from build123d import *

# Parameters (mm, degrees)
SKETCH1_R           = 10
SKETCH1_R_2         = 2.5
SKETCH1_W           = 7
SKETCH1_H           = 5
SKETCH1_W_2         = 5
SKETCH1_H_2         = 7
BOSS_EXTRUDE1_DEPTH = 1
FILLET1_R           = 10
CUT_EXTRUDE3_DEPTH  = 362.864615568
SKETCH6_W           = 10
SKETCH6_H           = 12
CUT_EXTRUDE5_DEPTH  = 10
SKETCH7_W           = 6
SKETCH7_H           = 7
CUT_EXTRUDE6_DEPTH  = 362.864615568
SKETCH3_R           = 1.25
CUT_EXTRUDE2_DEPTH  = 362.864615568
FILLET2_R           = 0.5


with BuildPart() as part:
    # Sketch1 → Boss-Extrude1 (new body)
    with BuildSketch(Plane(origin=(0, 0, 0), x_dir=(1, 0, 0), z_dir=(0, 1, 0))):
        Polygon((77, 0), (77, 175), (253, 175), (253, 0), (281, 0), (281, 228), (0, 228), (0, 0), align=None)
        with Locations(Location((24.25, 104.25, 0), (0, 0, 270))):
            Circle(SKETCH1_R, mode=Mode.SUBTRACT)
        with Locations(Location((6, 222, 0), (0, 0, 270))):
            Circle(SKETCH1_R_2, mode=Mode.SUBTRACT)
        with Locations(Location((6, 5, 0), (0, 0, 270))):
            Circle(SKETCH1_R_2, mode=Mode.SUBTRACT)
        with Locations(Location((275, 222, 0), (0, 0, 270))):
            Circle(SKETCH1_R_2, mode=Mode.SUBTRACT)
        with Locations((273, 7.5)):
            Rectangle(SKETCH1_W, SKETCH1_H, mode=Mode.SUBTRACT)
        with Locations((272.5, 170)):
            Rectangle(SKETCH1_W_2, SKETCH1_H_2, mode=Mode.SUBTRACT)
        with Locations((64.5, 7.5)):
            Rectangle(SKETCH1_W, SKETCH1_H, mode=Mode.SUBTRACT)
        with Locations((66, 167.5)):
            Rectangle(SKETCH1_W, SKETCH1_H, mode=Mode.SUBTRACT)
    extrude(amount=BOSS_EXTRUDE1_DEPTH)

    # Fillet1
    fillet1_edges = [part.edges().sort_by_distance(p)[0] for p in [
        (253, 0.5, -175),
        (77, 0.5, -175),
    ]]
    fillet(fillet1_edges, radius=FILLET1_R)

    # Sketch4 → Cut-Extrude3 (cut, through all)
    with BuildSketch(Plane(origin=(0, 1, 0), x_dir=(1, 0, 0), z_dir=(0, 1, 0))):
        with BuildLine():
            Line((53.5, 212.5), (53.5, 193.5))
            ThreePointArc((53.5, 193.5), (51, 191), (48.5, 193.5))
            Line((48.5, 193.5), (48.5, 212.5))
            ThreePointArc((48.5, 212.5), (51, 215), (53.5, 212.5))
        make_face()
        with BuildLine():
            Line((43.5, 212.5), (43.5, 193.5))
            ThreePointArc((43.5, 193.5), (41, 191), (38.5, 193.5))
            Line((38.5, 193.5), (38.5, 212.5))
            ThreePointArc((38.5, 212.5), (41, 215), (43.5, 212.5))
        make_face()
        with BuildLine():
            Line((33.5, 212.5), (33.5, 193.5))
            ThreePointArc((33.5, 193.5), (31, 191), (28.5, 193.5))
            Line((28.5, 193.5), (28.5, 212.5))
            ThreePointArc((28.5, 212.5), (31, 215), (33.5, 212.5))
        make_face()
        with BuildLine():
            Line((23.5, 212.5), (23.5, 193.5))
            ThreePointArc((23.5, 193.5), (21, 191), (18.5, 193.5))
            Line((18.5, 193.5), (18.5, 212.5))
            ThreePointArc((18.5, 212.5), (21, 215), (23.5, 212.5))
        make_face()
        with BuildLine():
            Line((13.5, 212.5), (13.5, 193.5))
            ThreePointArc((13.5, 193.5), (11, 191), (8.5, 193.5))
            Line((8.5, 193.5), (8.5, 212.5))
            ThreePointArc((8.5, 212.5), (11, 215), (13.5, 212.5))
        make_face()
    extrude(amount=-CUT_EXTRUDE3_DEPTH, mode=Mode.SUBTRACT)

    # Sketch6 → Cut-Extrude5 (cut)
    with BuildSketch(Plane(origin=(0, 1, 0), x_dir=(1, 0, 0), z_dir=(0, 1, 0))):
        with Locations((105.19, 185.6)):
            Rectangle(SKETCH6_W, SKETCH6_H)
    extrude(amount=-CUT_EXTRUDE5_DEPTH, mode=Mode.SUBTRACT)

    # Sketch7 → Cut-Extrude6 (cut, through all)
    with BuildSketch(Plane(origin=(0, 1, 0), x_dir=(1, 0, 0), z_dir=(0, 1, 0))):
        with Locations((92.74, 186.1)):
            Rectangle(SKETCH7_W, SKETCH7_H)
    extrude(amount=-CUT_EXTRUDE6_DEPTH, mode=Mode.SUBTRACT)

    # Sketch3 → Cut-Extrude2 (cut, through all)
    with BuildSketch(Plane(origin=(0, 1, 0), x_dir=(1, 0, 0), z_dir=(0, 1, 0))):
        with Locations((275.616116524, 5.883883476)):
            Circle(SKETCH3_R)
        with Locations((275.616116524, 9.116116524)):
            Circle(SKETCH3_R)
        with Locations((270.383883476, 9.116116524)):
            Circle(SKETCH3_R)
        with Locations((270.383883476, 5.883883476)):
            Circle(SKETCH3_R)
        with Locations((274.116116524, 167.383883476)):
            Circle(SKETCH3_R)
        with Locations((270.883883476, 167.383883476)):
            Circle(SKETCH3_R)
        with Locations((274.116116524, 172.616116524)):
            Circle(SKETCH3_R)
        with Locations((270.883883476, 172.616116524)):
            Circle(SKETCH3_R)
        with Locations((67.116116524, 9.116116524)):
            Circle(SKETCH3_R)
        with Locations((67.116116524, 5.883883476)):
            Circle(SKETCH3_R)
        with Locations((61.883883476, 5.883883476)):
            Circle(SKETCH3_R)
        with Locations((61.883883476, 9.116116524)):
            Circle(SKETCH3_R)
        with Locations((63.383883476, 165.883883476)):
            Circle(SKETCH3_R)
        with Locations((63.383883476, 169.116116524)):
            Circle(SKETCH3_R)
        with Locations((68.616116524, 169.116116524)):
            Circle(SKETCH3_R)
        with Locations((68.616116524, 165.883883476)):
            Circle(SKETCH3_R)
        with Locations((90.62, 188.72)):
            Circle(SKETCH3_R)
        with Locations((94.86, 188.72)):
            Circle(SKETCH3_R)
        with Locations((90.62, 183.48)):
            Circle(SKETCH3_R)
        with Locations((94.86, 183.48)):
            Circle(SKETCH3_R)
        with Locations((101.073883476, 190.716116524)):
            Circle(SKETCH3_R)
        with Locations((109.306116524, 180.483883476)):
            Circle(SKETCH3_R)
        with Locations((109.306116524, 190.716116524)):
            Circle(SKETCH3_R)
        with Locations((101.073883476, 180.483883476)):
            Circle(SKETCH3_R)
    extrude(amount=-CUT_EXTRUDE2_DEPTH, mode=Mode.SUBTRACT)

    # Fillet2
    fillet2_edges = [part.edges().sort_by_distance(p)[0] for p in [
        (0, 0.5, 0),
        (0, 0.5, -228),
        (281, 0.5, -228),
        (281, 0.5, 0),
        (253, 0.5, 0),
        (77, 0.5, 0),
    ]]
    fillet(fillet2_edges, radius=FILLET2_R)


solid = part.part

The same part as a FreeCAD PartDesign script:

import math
import FreeCAD as App
import Part
import Sketcher

V = App.Vector


def edges_at(feature, points):
    """Names of the edges that pass closest to the given points."""
    edges = feature.Shape.Edges
    near = lambda p: min(range(len(edges)), key=lambda i: edges[i].distToShape(Part.Vertex(*p))[0])
    return sorted({f"Edge{near(p) + 1}" for p in points})

doc = App.newDocument("Part")
body = doc.addObject("PartDesign::Body", "Body")

sketch1 = body.newObject("Sketcher::SketchObject", "Sketch")
sketch1.AttachmentSupport = (doc.getObject("XZ_Plane"), [""])
sketch1.MapMode = "FlatFace"
sketch1.addGeometry([
    Part.LineSegment(V(77, 0, 0), V(77, -175, 0)),
    Part.LineSegment(V(77, -175, 0), V(253, -175, 0)),
    Part.LineSegment(V(253, -175, 0), V(253, 0, 0)),
    Part.LineSegment(V(253, 0, 0), V(281, 0, 0)),
    Part.LineSegment(V(281, 0, 0), V(281, -228, 0)),
    Part.LineSegment(V(281, -228, 0), V(0, -228, 0)),
    Part.LineSegment(V(0, -228, 0), V(0, 0, 0)),
    Part.LineSegment(V(0, 0, 0), V(77, 0, 0)),
    Part.Circle(V(6, -5, 0), V(0, 0, 1), 2.5),
    Part.LineSegment(V(68, -5, 0), V(61, -5, 0)),
    Part.LineSegment(V(61, -5, 0), V(61, -10, 0)),
    Part.LineSegment(V(61, -10, 0), V(68, -10, 0)),
    Part.LineSegment(V(68, -10, 0), V(68, -5, 0)),
    Part.Circle(V(24.2, -104.2, 0), V(0, 0, 1), 10),
    Part.LineSegment(V(276.5, -5, 0), V(269.5, -5, 0)),
    Part.LineSegment(V(269.5, -5, 0), V(269.5, -10, 0)),
    Part.LineSegment(V(269.5, -10, 0), V(276.5, -10, 0)),
    Part.LineSegment(V(276.5, -10, 0), V(276.5, -5, 0)),
    Part.LineSegment(V(69.5, -165, 0), V(62.5, -165, 0)),
    Part.LineSegment(V(62.5, -165, 0), V(62.5, -170, 0)),
    Part.LineSegment(V(62.5, -170, 0), V(69.5, -170, 0)),
    Part.LineSegment(V(69.5, -170, 0), V(69.5, -165, 0)),
    Part.Circle(V(6, -222, 0), V(0, 0, 1), 2.5),
    Part.LineSegment(V(275, -166.5, 0), V(270, -166.5, 0)),
    Part.LineSegment(V(270, -166.5, 0), V(270, -173.5, 0)),
    Part.LineSegment(V(270, -173.5, 0), V(275, -173.5, 0)),
    Part.LineSegment(V(275, -173.5, 0), V(275, -166.5, 0)),
    Part.Circle(V(275, -222, 0), V(0, 0, 1), 2.5),
], False)
sketch1.addConstraint([
    Sketcher.Constraint("Coincident", 0, 2, 1, 1),
    Sketcher.Constraint("Coincident", 1, 2, 2, 1),
    Sketcher.Constraint("Coincident", 2, 2, 3, 1),
    Sketcher.Constraint("Coincident", 3, 2, 4, 1),
    Sketcher.Constraint("Coincident", 4, 2, 5, 1),
    Sketcher.Constraint("Coincident", 5, 2, 6, 1),
    Sketcher.Constraint("Coincident", 6, 2, 7, 1),
    Sketcher.Constraint("Coincident", 7, 2, 0, 1),
    Sketcher.Constraint("Coincident", 9, 2, 10, 1),
    Sketcher.Constraint("Coincident", 10, 2, 11, 1),
    Sketcher.Constraint("Coincident", 11, 2, 12, 1),
    Sketcher.Constraint("Coincident", 12, 2, 9, 1),
    Sketcher.Constraint("Coincident", 14, 2, 15, 1),
    Sketcher.Constraint("Coincident", 15, 2, 16, 1),
    Sketcher.Constraint("Coincident", 16, 2, 17, 1),
    Sketcher.Constraint("Coincident", 17, 2, 14, 1),
    Sketcher.Constraint("Coincident", 18, 2, 19, 1),
    Sketcher.Constraint("Coincident", 19, 2, 20, 1),
    Sketcher.Constraint("Coincident", 20, 2, 21, 1),
    Sketcher.Constraint("Coincident", 21, 2, 18, 1),
    Sketcher.Constraint("Coincident", 23, 2, 24, 1),
    Sketcher.Constraint("Coincident", 24, 2, 25, 1),
    Sketcher.Constraint("Coincident", 25, 2, 26, 1),
    Sketcher.Constraint("Coincident", 26, 2, 23, 1),
    Sketcher.Constraint("Vertical", 0),
    Sketcher.Constraint("Horizontal", 1),
    Sketcher.Constraint("Vertical", 2),
    Sketcher.Constraint("Horizontal", 3),
    Sketcher.Constraint("Vertical", 4),
    Sketcher.Constraint("Horizontal", 5),
    Sketcher.Constraint("Vertical", 6),
    Sketcher.Constraint("Horizontal", 7),
    Sketcher.Constraint("Horizontal", 9),
    Sketcher.Constraint("Vertical", 10),
    Sketcher.Constraint("Horizontal", 11),
    Sketcher.Constraint("Vertical", 12),
    Sketcher.Constraint("Horizontal", 14),
    Sketcher.Constraint("Vertical", 15),
    Sketcher.Constraint("Horizontal", 16),
    Sketcher.Constraint("Vertical", 17),
    Sketcher.Constraint("Horizontal", 18),
    Sketcher.Constraint("Vertical", 19),
    Sketcher.Constraint("Horizontal", 20),
    Sketcher.Constraint("Vertical", 21),
    Sketcher.Constraint("Horizontal", 23),
    Sketcher.Constraint("Vertical", 24),
    Sketcher.Constraint("Horizontal", 25),
    Sketcher.Constraint("Vertical", 26),
    Sketcher.Constraint("Coincident", 6, 2, -1, 1),
    Sketcher.Constraint("Equal", 8, 22),
    Sketcher.Constraint("Equal", 22, 27),
    Sketcher.Constraint("PointOnObject", 2, 2, -1),
    Sketcher.Constraint("Horizontal", 22, 3, 27, 3),
    Sketcher.Constraint("Horizontal", 8, 3, 9, 2),
    Sketcher.Constraint("Horizontal", 12, 2, 14, 2),
    Sketcher.Constraint("Horizontal", 11, 2, 15, 2),
    Sketcher.Constraint("Vertical", 8, 3, 22, 3),
    Sketcher.Constraint("Vertical", 27, 3, 25, 2),
    Sketcher.Constraint("Equal", 11, 14),
    Sketcher.Constraint("Equal", 16, 18),
    Sketcher.Constraint("Equal", 25, 10),
    Sketcher.Constraint("Equal", 17, 19),
    Sketcher.Constraint("Equal", 20, 24),
    Sketcher.Constraint("Diameter", 8, 5.0),
    Sketcher.Constraint("Diameter", 13, 20.0),
    Sketcher.Constraint("DistanceX", 1, 1, 1, 2, 176.0),
    Sketcher.Constraint("DistanceX", 3, 1, 3, 2, 28.0),
    Sketcher.Constraint("DistanceX", 5, 2, 5, 1, 281.0),
    Sketcher.Constraint("DistanceX", 9, 2, 9, 1, 7.0),
    Sketcher.Constraint("DistanceX", 23, 2, 23, 1, 5.0),
    Sketcher.Constraint("DistanceY", 0, 2, 0, 1, 175.0),
    Sketcher.Constraint("DistanceY", 4, 2, 4, 1, 228.0),
    Sketcher.Constraint("DistanceX", -1, 1, 8, 3, 6.0),
    Sketcher.Constraint("DistanceY", 8, 3, -1, 1, 5.0),
    Sketcher.Constraint("DistanceY", 22, 3, -1, 1, 222.0),
    Sketcher.Constraint("DistanceX", -1, 1, 27, 3, 275.0),
    Sketcher.Constraint("DistanceX", -1, 1, 9, 2, 61.0),
    Sketcher.Constraint("DistanceY", 18, 2, -1, 1, 165.0),
    Sketcher.Constraint("DistanceX", -1, 1, 14, 2, 269.5),
    Sketcher.Constraint("DistanceX", -1, 1, 18, 2, 62.5),
    Sketcher.Constraint("DistanceY", 23, 2, -1, 1, 166.5),
    Sketcher.Constraint("DistanceX", -1, 1, 13, 3, 24.25),
    Sketcher.Constraint("DistanceY", 13, 3, -1, 1, 104.25),
])
pad1 = body.newObject("PartDesign::Pad", "Pad")
pad1.Profile = sketch1
pad1.Length = 1
pad1.Reversed = True
doc.recompute()

fillet = body.newObject("PartDesign::Fillet", "Fillet")
fillet.Base = (pad1, edges_at(pad1, [(253, 0.5, -175), (77, 0.5, -175)]))
fillet.Radius = 10

sketch2 = body.newObject("Sketcher::SketchObject", "Sketch001")
sketch2.AttachmentSupport = (doc.getObject("XZ_Plane"), [""])
sketch2.MapMode = "FlatFace"
sketch2.AttachmentOffset = App.Placement(V(0, 0, -1), App.Rotation())
sketch2.addGeometry([
    Part.LineSegment(V(53.5, -193.5, 0), V(53.5, -212.5, 0)),
    Part.ArcOfCircle(Part.Circle(V(51, -212.5, 0), V(0, 0, 1), 2.5), math.radians(180), math.radians(360)),
    Part.LineSegment(V(48.5, -212.5, 0), V(48.5, -193.5, 0)),
    Part.ArcOfCircle(Part.Circle(V(51, -193.5, 0), V(0, 0, 1), 2.5), math.radians(0), math.radians(180)),
    Part.LineSegment(V(43.5, -193.5, 0), V(43.5, -212.5, 0)),
    Part.ArcOfCircle(Part.Circle(V(41, -212.5, 0), V(0, 0, 1), 2.5), math.radians(180), math.radians(360)),
    Part.LineSegment(V(38.5, -212.5, 0), V(38.5, -193.5, 0)),
    Part.ArcOfCircle(Part.Circle(V(41, -193.5, 0), V(0, 0, 1), 2.5), math.radians(0), math.radians(180)),
    Part.LineSegment(V(33.5, -193.5, 0), V(33.5, -212.5, 0)),
    Part.ArcOfCircle(Part.Circle(V(31, -212.5, 0), V(0, 0, 1), 2.5), math.radians(180), math.radians(360)),
    Part.LineSegment(V(28.5, -212.5, 0), V(28.5, -193.5, 0)),
    Part.ArcOfCircle(Part.Circle(V(31, -193.5, 0), V(0, 0, 1), 2.5), math.radians(0), math.radians(180)),
    Part.LineSegment(V(23.5, -193.5, 0), V(23.5, -212.5, 0)),
    Part.ArcOfCircle(Part.Circle(V(21, -212.5, 0), V(0, 0, 1), 2.5), math.radians(180), math.radians(360)),
    Part.LineSegment(V(18.5, -212.5, 0), V(18.5, -193.5, 0)),
    Part.ArcOfCircle(Part.Circle(V(21, -193.5, 0), V(0, 0, 1), 2.5), math.radians(0), math.radians(180)),
    Part.LineSegment(V(13.5, -193.5, 0), V(13.5, -212.5, 0)),
    Part.ArcOfCircle(Part.Circle(V(11, -212.5, 0), V(0, 0, 1), 2.5), math.radians(180), math.radians(360)),
    Part.LineSegment(V(8.5, -212.5, 0), V(8.5, -193.5, 0)),
    Part.ArcOfCircle(Part.Circle(V(11, -193.5, 0), V(0, 0, 1), 2.5), math.radians(0), math.radians(180)),
], False)
sketch2.addConstraint([
    Sketcher.Constraint("Tangent", 0, 2, 1, 2),
    Sketcher.Constraint("Tangent", 1, 1, 2, 1),
    Sketcher.Constraint("Tangent", 2, 2, 3, 2),
    Sketcher.Constraint("Tangent", 3, 1, 0, 1),
    Sketcher.Constraint("Tangent", 4, 2, 5, 2),
    Sketcher.Constraint("Tangent", 5, 1, 6, 1),
    Sketcher.Constraint("Tangent", 6, 2, 7, 2),
    Sketcher.Constraint("Tangent", 7, 1, 4, 1),
    Sketcher.Constraint("Tangent", 8, 2, 9, 2),
    Sketcher.Constraint("Tangent", 9, 1, 10, 1),
    Sketcher.Constraint("Tangent", 10, 2, 11, 2),
    Sketcher.Constraint("Tangent", 11, 1, 8, 1),
    Sketcher.Constraint("Tangent", 12, 2, 13, 2),
    Sketcher.Constraint("Tangent", 13, 1, 14, 1),
    Sketcher.Constraint("Tangent", 14, 2, 15, 2),
    Sketcher.Constraint("Tangent", 15, 1, 12, 1),
    Sketcher.Constraint("Tangent", 16, 2, 17, 2),
    Sketcher.Constraint("Tangent", 17, 1, 18, 1),
    Sketcher.Constraint("Tangent", 18, 2, 19, 2),
    Sketcher.Constraint("Tangent", 19, 1, 16, 1),
    Sketcher.Constraint("Vertical", 0),
    Sketcher.Constraint("Vertical", 2),
    Sketcher.Constraint("Vertical", 4),
    Sketcher.Constraint("Vertical", 6),
    Sketcher.Constraint("Vertical", 8),
    Sketcher.Constraint("Vertical", 10),
    Sketcher.Constraint("Vertical", 12),
    Sketcher.Constraint("Vertical", 14),
    Sketcher.Constraint("Vertical", 16),
    Sketcher.Constraint("Vertical", 18),
    Sketcher.Constraint("Equal", 3, 5),
    Sketcher.Constraint("Equal", 7, 9),
    Sketcher.Constraint("Equal", 11, 13),
    Sketcher.Constraint("Equal", 15, 17),
    Sketcher.Constraint("Horizontal", 1, 3, 5, 3),
    Sketcher.Constraint("Horizontal", 3, 3, 7, 3),
    Sketcher.Constraint("Horizontal", 5, 3, 9, 3),
    Sketcher.Constraint("Horizontal", 7, 3, 11, 3),
    Sketcher.Constraint("Horizontal", 9, 3, 13, 3),
    Sketcher.Constraint("Horizontal", 11, 3, 15, 3),
    Sketcher.Constraint("Horizontal", 13, 3, 17, 3),
    Sketcher.Constraint("Horizontal", 15, 3, 19, 3),
    Sketcher.Constraint("Radius", 1, 2.5),
    Sketcher.Constraint("DistanceY", 0, 2, 0, 1, 19.0),
    Sketcher.Constraint("DistanceX", -1, 1, 1, 3, 51.0),
    Sketcher.Constraint("DistanceX", -1, 1, 5, 3, 41.0),
    Sketcher.Constraint("DistanceX", -1, 1, 9, 3, 31.0),
    Sketcher.Constraint("DistanceX", -1, 1, 13, 3, 21.0),
    Sketcher.Constraint("DistanceX", -1, 1, 17, 3, 11.0),
    Sketcher.Constraint("DistanceY", 1, 3, -1, 1, 212.5),
])
pocket1 = body.newObject("PartDesign::Pocket", "Pocket")
pocket1.Profile = sketch2
pocket1.Type = "ThroughAll"
pocket1.Reversed = True

sketch3 = body.newObject("Sketcher::SketchObject", "Sketch002")
sketch3.AttachmentSupport = (doc.getObject("XZ_Plane"), [""])
sketch3.MapMode = "FlatFace"
sketch3.AttachmentOffset = App.Placement(V(0, 0, -1), App.Rotation())
sketch3.addGeometry([
    Part.LineSegment(V(100, -192, 0), V(100, -180, 0)),
    Part.LineSegment(V(100, -180, 0), V(110, -180, 0)),
    Part.LineSegment(V(110, -180, 0), V(110, -192, 0)),
    Part.LineSegment(V(110, -192, 0), V(100, -192, 0)),
], False)
sketch3.addConstraint([
    Sketcher.Constraint("Coincident", 0, 2, 1, 1),
    Sketcher.Constraint("Coincident", 1, 2, 2, 1),
    Sketcher.Constraint("Coincident", 2, 2, 3, 1),
    Sketcher.Constraint("Coincident", 3, 2, 0, 1),
    Sketcher.Constraint("Vertical", 0),
    Sketcher.Constraint("Horizontal", 1),
    Sketcher.Constraint("Vertical", 2),
    Sketcher.Constraint("Horizontal", 3),
    Sketcher.Constraint("DistanceX", 1, 1, 1, 2, 10.0),
    Sketcher.Constraint("DistanceY", 0, 1, 0, 2, 12.0),
    Sketcher.Constraint("DistanceY", 0, 2, -1, 1, 179.6),
    Sketcher.Constraint("DistanceX", -1, 1, 0, 2, 100.19),
])
pocket2 = body.newObject("PartDesign::Pocket", "Pocket001")
pocket2.Profile = sketch3
pocket2.Length = 10
pocket2.Reversed = True

sketch4 = body.newObject("Sketcher::SketchObject", "Sketch003")
sketch4.AttachmentSupport = (doc.getObject("XZ_Plane"), [""])
sketch4.MapMode = "FlatFace"
sketch4.AttachmentOffset = App.Placement(V(0, 0, -1), App.Rotation())
sketch4.addGeometry([
    Part.LineSegment(V(90, -190, 0), V(90, -183, 0)),
    Part.LineSegment(V(90, -183, 0), V(96, -183, 0)),
    Part.LineSegment(V(96, -183, 0), V(96, -190, 0)),
    Part.LineSegment(V(96, -190, 0), V(90, -190, 0)),
], False)
sketch4.addConstraint([
    Sketcher.Constraint("Coincident", 0, 2, 1, 1),
    Sketcher.Constraint("Coincident", 1, 2, 2, 1),
    Sketcher.Constraint("Coincident", 2, 2, 3, 1),
    Sketcher.Constraint("Coincident", 3, 2, 0, 1),
    Sketcher.Constraint("Vertical", 0),
    Sketcher.Constraint("Horizontal", 1),
    Sketcher.Constraint("Vertical", 2),
    Sketcher.Constraint("Horizontal", 3),
    Sketcher.Constraint("DistanceX", 1, 1, 1, 2, 6.0),
    Sketcher.Constraint("DistanceY", 0, 1, 0, 2, 7.0),
    Sketcher.Constraint("DistanceY", 0, 2, -1, 1, 182.6),
    Sketcher.Constraint("DistanceX", -1, 1, 0, 2, 89.74),
])
pocket3 = body.newObject("PartDesign::Pocket", "Pocket002")
pocket3.Profile = sketch4
pocket3.Type = "ThroughAll"
pocket3.Reversed = True

sketch5 = body.newObject("Sketcher::SketchObject", "Sketch004")
sketch5.AttachmentSupport = (doc.getObject("XZ_Plane"), [""])
sketch5.MapMode = "FlatFace"
sketch5.AttachmentOffset = App.Placement(V(0, 0, -1), App.Rotation())
sketch5.addGeometry([
    Part.Circle(V(275.6, -5.9, 0), V(0, 0, 1), 1.2),
    Part.Circle(V(275.6, -9.1, 0), V(0, 0, 1), 1.2),
    Part.Circle(V(270.4, -9.1, 0), V(0, 0, 1), 1.2),
    Part.Circle(V(270.4, -5.9, 0), V(0, 0, 1), 1.2),
    Part.Circle(V(274.1, -167.4, 0), V(0, 0, 1), 1.2),
    Part.Circle(V(270.9, -167.4, 0), V(0, 0, 1), 1.2),
    Part.Circle(V(274.1, -172.6, 0), V(0, 0, 1), 1.2),
    Part.Circle(V(270.9, -172.6, 0), V(0, 0, 1), 1.2),
    Part.Circle(V(67.1, -9.1, 0), V(0, 0, 1), 1.2),
    Part.Circle(V(67.1, -5.9, 0), V(0, 0, 1), 1.2),
    Part.Circle(V(61.9, -5.9, 0), V(0, 0, 1), 1.2),
    Part.Circle(V(61.9, -9.1, 0), V(0, 0, 1), 1.2),
    Part.Circle(V(63.4, -165.9, 0), V(0, 0, 1), 1.2),
    Part.Circle(V(63.4, -169.1, 0), V(0, 0, 1), 1.2),
    Part.Circle(V(68.6, -169.1, 0), V(0, 0, 1), 1.2),
    Part.Circle(V(68.6, -165.9, 0), V(0, 0, 1), 1.2),
    Part.Circle(V(90.6, -188.7, 0), V(0, 0, 1), 1.2),
    Part.Circle(V(94.9, -188.7, 0), V(0, 0, 1), 1.2),
    Part.Circle(V(90.6, -183.5, 0), V(0, 0, 1), 1.2),
    Part.Circle(V(94.9, -183.5, 0), V(0, 0, 1), 1.2),
    Part.Circle(V(101.1, -190.7, 0), V(0, 0, 1), 1.2),
    Part.Circle(V(109.3, -180.5, 0), V(0, 0, 1), 1.2),
    Part.Circle(V(109.3, -190.7, 0), V(0, 0, 1), 1.2),
    Part.Circle(V(101.1, -180.5, 0), V(0, 0, 1), 1.2),
], False)
sketch5.addConstraint([
    Sketcher.Constraint("Equal", 0, 1),
    Sketcher.Constraint("Equal", 1, 2),
    Sketcher.Constraint("Equal", 2, 3),
    Sketcher.Constraint("Equal", 3, 4),
    Sketcher.Constraint("Equal", 4, 5),
    Sketcher.Constraint("Equal", 5, 6),
    Sketcher.Constraint("Equal", 6, 7),
    Sketcher.Constraint("Equal", 7, 8),
    Sketcher.Constraint("Equal", 8, 9),
    Sketcher.Constraint("Equal", 9, 10),
    Sketcher.Constraint("Equal", 10, 11),
    Sketcher.Constraint("Equal", 11, 12),
    Sketcher.Constraint("Equal", 12, 13),
    Sketcher.Constraint("Equal", 13, 14),
    Sketcher.Constraint("Equal", 14, 15),
    Sketcher.Constraint("Equal", 15, 16),
    Sketcher.Constraint("Equal", 16, 17),
    Sketcher.Constraint("Equal", 17, 18),
    Sketcher.Constraint("Equal", 18, 19),
    Sketcher.Constraint("Equal", 19, 20),
    Sketcher.Constraint("Equal", 20, 21),
    Sketcher.Constraint("Equal", 21, 22),
    Sketcher.Constraint("Equal", 22, 23),
    Sketcher.Constraint("Horizontal", 1, 3, 2, 3),
    Sketcher.Constraint("Horizontal", 0, 3, 3, 3),
    Sketcher.Constraint("Horizontal", 4, 3, 5, 3),
    Sketcher.Constraint("Horizontal", 6, 3, 7, 3),
    Sketcher.Constraint("Horizontal", 2, 3, 8, 3),
    Sketcher.Constraint("Horizontal", 3, 3, 9, 3),
    Sketcher.Constraint("Horizontal", 9, 3, 10, 3),
    Sketcher.Constraint("Horizontal", 8, 3, 11, 3),
    Sketcher.Constraint("Horizontal", 13, 3, 14, 3),
    Sketcher.Constraint("Horizontal", 12, 3, 15, 3),
    Sketcher.Constraint("Horizontal", 16, 3, 17, 3),
    Sketcher.Constraint("Horizontal", 18, 3, 19, 3),
    Sketcher.Constraint("Horizontal", 20, 3, 22, 3),
    Sketcher.Constraint("Horizontal", 21, 3, 23, 3),
    Sketcher.Constraint("Vertical", 0, 3, 1, 3),
    Sketcher.Constraint("Vertical", 2, 3, 3, 3),
    Sketcher.Constraint("Vertical", 4, 3, 6, 3),
    Sketcher.Constraint("Vertical", 5, 3, 7, 3),
    Sketcher.Constraint("Vertical", 8, 3, 9, 3),
    Sketcher.Constraint("Vertical", 10, 3, 11, 3),
    Sketcher.Constraint("Vertical", 12, 3, 13, 3),
    Sketcher.Constraint("Vertical", 14, 3, 15, 3),
    Sketcher.Constraint("Vertical", 16, 3, 18, 3),
    Sketcher.Constraint("Vertical", 17, 3, 19, 3),
    Sketcher.Constraint("Vertical", 21, 3, 22, 3),
    Sketcher.Constraint("Vertical", 20, 3, 23, 3),
    Sketcher.Constraint("Diameter", 0, 2.5),
    Sketcher.Constraint("DistanceY", 12, 3, 10, 3, 160.0),
    Sketcher.Constraint("DistanceY", 13, 3, 11, 3, 160.0),
    Sketcher.Constraint("DistanceX", 4, 3, 1, 3, 1.5),
    Sketcher.Constraint("DistanceY", 4, 3, 0, 3, 161.5),
    Sketcher.Constraint("DistanceX", 2, 3, 5, 3, 0.5),
    Sketcher.Constraint("DistanceY", 6, 3, 1, 3, 163.5),
    Sketcher.Constraint("DistanceX", 8, 3, 1, 3, 208.5),
    Sketcher.Constraint("DistanceX", 10, 3, 3, 3, 208.5),
    Sketcher.Constraint("DistanceX", 11, 3, 12, 3, 1.5),
    Sketcher.Constraint("DistanceX", 8, 3, 14, 3, 1.5),
    Sketcher.Constraint("DistanceY", 20, 3, 14, 3, 21.6),
    Sketcher.Constraint("DistanceX", -1, 1, 16, 3, 90.62),
    Sketcher.Constraint("DistanceY", 16, 3, -1, 1, 188.72),
    Sketcher.Constraint("DistanceX", -1, 1, 17, 3, 94.86),
    Sketcher.Constraint("DistanceY", 18, 3, -1, 1, 183.48),
    Sketcher.Constraint("DistanceX", -1, 1, 0, 3, 275.616117),
    Sketcher.Constraint("DistanceY", 0, 3, -1, 1, 5.883883),
    Sketcher.Constraint("DistanceY", 1, 3, -1, 1, 9.116117),
    Sketcher.Constraint("DistanceX", -1, 1, 2, 3, 270.383883),
    Sketcher.Constraint("DistanceX", -1, 1, 20, 3, 101.073883),
    Sketcher.Constraint("DistanceX", -1, 1, 21, 3, 109.306117),
    Sketcher.Constraint("DistanceY", 21, 3, -1, 1, 180.483883),
])
pocket4 = body.newObject("PartDesign::Pocket", "Pocket003")
pocket4.Profile = sketch5
pocket4.Type = "ThroughAll"
pocket4.Reversed = True
doc.recompute()

fillet2 = body.newObject("PartDesign::Fillet", "Fillet001")
fillet2.Base = (pocket4, edges_at(pocket4, [
    (0, 0.5, 0),
    (0, 0.5, -228),
    (281, 0.5, -228),
    (281, 0.5, 0),
    (253, 0.5, 0),
    (77, 0.5, 0),
]))
fillet2.Radius = 0.5

doc.recompute()
